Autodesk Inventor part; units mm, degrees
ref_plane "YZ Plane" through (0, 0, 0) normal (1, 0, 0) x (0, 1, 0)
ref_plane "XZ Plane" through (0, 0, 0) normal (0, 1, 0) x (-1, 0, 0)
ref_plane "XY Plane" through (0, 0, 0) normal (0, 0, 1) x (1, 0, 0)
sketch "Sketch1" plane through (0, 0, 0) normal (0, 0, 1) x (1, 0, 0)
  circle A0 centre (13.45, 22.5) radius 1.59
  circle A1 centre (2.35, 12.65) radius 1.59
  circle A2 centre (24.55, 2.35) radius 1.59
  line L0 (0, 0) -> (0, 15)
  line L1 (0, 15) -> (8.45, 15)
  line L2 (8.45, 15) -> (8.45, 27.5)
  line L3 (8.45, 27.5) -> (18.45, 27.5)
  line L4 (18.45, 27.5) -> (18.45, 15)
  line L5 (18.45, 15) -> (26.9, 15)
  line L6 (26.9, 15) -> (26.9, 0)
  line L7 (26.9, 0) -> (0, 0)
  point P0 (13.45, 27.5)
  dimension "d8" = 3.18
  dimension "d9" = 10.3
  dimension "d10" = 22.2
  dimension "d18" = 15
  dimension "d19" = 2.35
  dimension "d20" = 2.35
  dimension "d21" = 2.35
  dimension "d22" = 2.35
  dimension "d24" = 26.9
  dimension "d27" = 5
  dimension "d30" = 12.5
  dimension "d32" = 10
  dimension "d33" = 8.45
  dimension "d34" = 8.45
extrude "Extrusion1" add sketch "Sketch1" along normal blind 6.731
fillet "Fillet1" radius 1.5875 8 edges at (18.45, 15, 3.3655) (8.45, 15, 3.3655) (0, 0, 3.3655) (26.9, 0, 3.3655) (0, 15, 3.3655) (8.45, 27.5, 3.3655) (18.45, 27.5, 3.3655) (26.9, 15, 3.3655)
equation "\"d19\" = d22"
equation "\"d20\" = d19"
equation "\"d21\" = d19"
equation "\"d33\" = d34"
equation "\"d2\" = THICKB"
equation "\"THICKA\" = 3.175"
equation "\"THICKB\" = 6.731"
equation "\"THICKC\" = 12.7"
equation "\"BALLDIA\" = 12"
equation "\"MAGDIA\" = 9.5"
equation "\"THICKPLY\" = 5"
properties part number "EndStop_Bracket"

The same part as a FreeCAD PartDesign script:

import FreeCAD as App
import Part
import Sketcher
from FreeCAD import Vector
Q = App.Units.Quantity


def edges_at(feature, points):
    """Names of the edges that pass closest to the given points."""
    edges = feature.Shape.Edges
    near = lambda p: min(range(len(edges)), key=lambda i: edges[i].distToShape(Part.Vertex(*p))[0])
    return sorted({f"Edge{near(p) + 1}" for p in points})


def add_polygon(sketch, points):
    """Adds a closed chain of lines whose ends are joined by coincident constraints."""
    first, n = sketch.GeometryCount, len(points)
    for a, b in zip(points, points[1:] + points[:1]):
        sketch.addGeometry(Part.LineSegment(App.Vector(*a, 0), App.Vector(*b, 0)), False)
    for i in range(n):
        sketch.addConstraint(Sketcher.Constraint("Coincident", first + i, 2, first + (i + 1) % n, 1))

doc = App.newDocument("Part")
body = doc.addObject("PartDesign::Body", "Body")

sketch1 = body.newObject("Sketcher::SketchObject", "Sketch")
sketch1.AttachmentSupport = (doc.getObject("XY_Plane"), [""])
sketch1.MapMode = "FlatFace"
add_polygon(sketch1, [(0, 15), (0, 0), (26.9, 0), (26.9, 15), (18.4, 15), (18.4, 27.5), (8.4, 27.5), (8.4, 15)])
sketch1.addGeometry(Part.Circle(Vector(2.4, 12.7, 0), Vector(0, 0, 1), 1.6), False)
sketch1.addGeometry(Part.Circle(Vector(24.6, 2.4, 0), Vector(0, 0, 1), 1.6), False)
sketch1.addGeometry(Part.Circle(Vector(13.4, 22.5, 0), Vector(0, 0, 1), 1.6), False)
sketch1.addConstraint([
    Sketcher.Constraint("Vertical", 0),
    Sketcher.Constraint("Horizontal", 1),
    Sketcher.Constraint("Vertical", 2),
    Sketcher.Constraint("Horizontal", 3),
    Sketcher.Constraint("Vertical", 4),
    Sketcher.Constraint("Horizontal", 5),
    Sketcher.Constraint("Vertical", 6),
    Sketcher.Constraint("Horizontal", 7),
    Sketcher.Constraint("Coincident", 0, 2, -1, 1),
    Sketcher.Constraint("Equal", 8, 9),
    Sketcher.Constraint("Equal", 9, 10),
    Sketcher.Constraint("Horizontal", 3, 2, 6, 2),
    Sketcher.Constraint("Equal", 3, 7),
    Sketcher.Constraint("Diameter", 8, Q("3.18 mm")),
    Sketcher.Constraint("DistanceX", 5, 2, 5, 1, Q("10 mm")),
    Sketcher.Constraint("DistanceY", 0, 2, 0, 1, Q("15 mm")),
    Sketcher.Constraint("DistanceX", 1, 1, 1, 2, Q("26.9 mm")),
    Sketcher.Constraint("DistanceY", 4, 1, 4, 2, Q("12.5 mm")),
    Sketcher.Constraint("DistanceX", 10, 3, 3, 2, Q("5 mm")),
    Sketcher.Constraint("DistanceY", 10, 3, 4, 2, Q("5 mm")),
    Sketcher.Constraint("DistanceX", 8, 3, 9, 3, Q("22.2 mm")),
    Sketcher.Constraint("DistanceY", 9, 3, 8, 3, Q("10.3 mm")),
    Sketcher.Constraint("DistanceX", -1, 1, 8, 3, Q("2.35 mm")),
    Sketcher.Constraint("DistanceY", -1, 1, 9, 3, Q("2.35 mm")),
])
pad1 = body.newObject("PartDesign::Pad", "Pad")
pad1.Profile = sketch1
pad1.Length = 6.731
doc.recompute()

fillet = body.newObject("PartDesign::Fillet", "Fillet")
fillet.Base = (pad1, edges_at(pad1, [
    (18.45, 15, 3.365),
    (8.45, 15, 3.365),
    (0, 0, 3.365),
    (26.9, 0, 3.365),
    (0, 15, 3.365),
    (8.45, 27.5, 3.365),
    (18.45, 27.5, 3.365),
    (26.9, 15, 3.365),
]))
fillet.Radius = 1.5875

doc.recompute()
